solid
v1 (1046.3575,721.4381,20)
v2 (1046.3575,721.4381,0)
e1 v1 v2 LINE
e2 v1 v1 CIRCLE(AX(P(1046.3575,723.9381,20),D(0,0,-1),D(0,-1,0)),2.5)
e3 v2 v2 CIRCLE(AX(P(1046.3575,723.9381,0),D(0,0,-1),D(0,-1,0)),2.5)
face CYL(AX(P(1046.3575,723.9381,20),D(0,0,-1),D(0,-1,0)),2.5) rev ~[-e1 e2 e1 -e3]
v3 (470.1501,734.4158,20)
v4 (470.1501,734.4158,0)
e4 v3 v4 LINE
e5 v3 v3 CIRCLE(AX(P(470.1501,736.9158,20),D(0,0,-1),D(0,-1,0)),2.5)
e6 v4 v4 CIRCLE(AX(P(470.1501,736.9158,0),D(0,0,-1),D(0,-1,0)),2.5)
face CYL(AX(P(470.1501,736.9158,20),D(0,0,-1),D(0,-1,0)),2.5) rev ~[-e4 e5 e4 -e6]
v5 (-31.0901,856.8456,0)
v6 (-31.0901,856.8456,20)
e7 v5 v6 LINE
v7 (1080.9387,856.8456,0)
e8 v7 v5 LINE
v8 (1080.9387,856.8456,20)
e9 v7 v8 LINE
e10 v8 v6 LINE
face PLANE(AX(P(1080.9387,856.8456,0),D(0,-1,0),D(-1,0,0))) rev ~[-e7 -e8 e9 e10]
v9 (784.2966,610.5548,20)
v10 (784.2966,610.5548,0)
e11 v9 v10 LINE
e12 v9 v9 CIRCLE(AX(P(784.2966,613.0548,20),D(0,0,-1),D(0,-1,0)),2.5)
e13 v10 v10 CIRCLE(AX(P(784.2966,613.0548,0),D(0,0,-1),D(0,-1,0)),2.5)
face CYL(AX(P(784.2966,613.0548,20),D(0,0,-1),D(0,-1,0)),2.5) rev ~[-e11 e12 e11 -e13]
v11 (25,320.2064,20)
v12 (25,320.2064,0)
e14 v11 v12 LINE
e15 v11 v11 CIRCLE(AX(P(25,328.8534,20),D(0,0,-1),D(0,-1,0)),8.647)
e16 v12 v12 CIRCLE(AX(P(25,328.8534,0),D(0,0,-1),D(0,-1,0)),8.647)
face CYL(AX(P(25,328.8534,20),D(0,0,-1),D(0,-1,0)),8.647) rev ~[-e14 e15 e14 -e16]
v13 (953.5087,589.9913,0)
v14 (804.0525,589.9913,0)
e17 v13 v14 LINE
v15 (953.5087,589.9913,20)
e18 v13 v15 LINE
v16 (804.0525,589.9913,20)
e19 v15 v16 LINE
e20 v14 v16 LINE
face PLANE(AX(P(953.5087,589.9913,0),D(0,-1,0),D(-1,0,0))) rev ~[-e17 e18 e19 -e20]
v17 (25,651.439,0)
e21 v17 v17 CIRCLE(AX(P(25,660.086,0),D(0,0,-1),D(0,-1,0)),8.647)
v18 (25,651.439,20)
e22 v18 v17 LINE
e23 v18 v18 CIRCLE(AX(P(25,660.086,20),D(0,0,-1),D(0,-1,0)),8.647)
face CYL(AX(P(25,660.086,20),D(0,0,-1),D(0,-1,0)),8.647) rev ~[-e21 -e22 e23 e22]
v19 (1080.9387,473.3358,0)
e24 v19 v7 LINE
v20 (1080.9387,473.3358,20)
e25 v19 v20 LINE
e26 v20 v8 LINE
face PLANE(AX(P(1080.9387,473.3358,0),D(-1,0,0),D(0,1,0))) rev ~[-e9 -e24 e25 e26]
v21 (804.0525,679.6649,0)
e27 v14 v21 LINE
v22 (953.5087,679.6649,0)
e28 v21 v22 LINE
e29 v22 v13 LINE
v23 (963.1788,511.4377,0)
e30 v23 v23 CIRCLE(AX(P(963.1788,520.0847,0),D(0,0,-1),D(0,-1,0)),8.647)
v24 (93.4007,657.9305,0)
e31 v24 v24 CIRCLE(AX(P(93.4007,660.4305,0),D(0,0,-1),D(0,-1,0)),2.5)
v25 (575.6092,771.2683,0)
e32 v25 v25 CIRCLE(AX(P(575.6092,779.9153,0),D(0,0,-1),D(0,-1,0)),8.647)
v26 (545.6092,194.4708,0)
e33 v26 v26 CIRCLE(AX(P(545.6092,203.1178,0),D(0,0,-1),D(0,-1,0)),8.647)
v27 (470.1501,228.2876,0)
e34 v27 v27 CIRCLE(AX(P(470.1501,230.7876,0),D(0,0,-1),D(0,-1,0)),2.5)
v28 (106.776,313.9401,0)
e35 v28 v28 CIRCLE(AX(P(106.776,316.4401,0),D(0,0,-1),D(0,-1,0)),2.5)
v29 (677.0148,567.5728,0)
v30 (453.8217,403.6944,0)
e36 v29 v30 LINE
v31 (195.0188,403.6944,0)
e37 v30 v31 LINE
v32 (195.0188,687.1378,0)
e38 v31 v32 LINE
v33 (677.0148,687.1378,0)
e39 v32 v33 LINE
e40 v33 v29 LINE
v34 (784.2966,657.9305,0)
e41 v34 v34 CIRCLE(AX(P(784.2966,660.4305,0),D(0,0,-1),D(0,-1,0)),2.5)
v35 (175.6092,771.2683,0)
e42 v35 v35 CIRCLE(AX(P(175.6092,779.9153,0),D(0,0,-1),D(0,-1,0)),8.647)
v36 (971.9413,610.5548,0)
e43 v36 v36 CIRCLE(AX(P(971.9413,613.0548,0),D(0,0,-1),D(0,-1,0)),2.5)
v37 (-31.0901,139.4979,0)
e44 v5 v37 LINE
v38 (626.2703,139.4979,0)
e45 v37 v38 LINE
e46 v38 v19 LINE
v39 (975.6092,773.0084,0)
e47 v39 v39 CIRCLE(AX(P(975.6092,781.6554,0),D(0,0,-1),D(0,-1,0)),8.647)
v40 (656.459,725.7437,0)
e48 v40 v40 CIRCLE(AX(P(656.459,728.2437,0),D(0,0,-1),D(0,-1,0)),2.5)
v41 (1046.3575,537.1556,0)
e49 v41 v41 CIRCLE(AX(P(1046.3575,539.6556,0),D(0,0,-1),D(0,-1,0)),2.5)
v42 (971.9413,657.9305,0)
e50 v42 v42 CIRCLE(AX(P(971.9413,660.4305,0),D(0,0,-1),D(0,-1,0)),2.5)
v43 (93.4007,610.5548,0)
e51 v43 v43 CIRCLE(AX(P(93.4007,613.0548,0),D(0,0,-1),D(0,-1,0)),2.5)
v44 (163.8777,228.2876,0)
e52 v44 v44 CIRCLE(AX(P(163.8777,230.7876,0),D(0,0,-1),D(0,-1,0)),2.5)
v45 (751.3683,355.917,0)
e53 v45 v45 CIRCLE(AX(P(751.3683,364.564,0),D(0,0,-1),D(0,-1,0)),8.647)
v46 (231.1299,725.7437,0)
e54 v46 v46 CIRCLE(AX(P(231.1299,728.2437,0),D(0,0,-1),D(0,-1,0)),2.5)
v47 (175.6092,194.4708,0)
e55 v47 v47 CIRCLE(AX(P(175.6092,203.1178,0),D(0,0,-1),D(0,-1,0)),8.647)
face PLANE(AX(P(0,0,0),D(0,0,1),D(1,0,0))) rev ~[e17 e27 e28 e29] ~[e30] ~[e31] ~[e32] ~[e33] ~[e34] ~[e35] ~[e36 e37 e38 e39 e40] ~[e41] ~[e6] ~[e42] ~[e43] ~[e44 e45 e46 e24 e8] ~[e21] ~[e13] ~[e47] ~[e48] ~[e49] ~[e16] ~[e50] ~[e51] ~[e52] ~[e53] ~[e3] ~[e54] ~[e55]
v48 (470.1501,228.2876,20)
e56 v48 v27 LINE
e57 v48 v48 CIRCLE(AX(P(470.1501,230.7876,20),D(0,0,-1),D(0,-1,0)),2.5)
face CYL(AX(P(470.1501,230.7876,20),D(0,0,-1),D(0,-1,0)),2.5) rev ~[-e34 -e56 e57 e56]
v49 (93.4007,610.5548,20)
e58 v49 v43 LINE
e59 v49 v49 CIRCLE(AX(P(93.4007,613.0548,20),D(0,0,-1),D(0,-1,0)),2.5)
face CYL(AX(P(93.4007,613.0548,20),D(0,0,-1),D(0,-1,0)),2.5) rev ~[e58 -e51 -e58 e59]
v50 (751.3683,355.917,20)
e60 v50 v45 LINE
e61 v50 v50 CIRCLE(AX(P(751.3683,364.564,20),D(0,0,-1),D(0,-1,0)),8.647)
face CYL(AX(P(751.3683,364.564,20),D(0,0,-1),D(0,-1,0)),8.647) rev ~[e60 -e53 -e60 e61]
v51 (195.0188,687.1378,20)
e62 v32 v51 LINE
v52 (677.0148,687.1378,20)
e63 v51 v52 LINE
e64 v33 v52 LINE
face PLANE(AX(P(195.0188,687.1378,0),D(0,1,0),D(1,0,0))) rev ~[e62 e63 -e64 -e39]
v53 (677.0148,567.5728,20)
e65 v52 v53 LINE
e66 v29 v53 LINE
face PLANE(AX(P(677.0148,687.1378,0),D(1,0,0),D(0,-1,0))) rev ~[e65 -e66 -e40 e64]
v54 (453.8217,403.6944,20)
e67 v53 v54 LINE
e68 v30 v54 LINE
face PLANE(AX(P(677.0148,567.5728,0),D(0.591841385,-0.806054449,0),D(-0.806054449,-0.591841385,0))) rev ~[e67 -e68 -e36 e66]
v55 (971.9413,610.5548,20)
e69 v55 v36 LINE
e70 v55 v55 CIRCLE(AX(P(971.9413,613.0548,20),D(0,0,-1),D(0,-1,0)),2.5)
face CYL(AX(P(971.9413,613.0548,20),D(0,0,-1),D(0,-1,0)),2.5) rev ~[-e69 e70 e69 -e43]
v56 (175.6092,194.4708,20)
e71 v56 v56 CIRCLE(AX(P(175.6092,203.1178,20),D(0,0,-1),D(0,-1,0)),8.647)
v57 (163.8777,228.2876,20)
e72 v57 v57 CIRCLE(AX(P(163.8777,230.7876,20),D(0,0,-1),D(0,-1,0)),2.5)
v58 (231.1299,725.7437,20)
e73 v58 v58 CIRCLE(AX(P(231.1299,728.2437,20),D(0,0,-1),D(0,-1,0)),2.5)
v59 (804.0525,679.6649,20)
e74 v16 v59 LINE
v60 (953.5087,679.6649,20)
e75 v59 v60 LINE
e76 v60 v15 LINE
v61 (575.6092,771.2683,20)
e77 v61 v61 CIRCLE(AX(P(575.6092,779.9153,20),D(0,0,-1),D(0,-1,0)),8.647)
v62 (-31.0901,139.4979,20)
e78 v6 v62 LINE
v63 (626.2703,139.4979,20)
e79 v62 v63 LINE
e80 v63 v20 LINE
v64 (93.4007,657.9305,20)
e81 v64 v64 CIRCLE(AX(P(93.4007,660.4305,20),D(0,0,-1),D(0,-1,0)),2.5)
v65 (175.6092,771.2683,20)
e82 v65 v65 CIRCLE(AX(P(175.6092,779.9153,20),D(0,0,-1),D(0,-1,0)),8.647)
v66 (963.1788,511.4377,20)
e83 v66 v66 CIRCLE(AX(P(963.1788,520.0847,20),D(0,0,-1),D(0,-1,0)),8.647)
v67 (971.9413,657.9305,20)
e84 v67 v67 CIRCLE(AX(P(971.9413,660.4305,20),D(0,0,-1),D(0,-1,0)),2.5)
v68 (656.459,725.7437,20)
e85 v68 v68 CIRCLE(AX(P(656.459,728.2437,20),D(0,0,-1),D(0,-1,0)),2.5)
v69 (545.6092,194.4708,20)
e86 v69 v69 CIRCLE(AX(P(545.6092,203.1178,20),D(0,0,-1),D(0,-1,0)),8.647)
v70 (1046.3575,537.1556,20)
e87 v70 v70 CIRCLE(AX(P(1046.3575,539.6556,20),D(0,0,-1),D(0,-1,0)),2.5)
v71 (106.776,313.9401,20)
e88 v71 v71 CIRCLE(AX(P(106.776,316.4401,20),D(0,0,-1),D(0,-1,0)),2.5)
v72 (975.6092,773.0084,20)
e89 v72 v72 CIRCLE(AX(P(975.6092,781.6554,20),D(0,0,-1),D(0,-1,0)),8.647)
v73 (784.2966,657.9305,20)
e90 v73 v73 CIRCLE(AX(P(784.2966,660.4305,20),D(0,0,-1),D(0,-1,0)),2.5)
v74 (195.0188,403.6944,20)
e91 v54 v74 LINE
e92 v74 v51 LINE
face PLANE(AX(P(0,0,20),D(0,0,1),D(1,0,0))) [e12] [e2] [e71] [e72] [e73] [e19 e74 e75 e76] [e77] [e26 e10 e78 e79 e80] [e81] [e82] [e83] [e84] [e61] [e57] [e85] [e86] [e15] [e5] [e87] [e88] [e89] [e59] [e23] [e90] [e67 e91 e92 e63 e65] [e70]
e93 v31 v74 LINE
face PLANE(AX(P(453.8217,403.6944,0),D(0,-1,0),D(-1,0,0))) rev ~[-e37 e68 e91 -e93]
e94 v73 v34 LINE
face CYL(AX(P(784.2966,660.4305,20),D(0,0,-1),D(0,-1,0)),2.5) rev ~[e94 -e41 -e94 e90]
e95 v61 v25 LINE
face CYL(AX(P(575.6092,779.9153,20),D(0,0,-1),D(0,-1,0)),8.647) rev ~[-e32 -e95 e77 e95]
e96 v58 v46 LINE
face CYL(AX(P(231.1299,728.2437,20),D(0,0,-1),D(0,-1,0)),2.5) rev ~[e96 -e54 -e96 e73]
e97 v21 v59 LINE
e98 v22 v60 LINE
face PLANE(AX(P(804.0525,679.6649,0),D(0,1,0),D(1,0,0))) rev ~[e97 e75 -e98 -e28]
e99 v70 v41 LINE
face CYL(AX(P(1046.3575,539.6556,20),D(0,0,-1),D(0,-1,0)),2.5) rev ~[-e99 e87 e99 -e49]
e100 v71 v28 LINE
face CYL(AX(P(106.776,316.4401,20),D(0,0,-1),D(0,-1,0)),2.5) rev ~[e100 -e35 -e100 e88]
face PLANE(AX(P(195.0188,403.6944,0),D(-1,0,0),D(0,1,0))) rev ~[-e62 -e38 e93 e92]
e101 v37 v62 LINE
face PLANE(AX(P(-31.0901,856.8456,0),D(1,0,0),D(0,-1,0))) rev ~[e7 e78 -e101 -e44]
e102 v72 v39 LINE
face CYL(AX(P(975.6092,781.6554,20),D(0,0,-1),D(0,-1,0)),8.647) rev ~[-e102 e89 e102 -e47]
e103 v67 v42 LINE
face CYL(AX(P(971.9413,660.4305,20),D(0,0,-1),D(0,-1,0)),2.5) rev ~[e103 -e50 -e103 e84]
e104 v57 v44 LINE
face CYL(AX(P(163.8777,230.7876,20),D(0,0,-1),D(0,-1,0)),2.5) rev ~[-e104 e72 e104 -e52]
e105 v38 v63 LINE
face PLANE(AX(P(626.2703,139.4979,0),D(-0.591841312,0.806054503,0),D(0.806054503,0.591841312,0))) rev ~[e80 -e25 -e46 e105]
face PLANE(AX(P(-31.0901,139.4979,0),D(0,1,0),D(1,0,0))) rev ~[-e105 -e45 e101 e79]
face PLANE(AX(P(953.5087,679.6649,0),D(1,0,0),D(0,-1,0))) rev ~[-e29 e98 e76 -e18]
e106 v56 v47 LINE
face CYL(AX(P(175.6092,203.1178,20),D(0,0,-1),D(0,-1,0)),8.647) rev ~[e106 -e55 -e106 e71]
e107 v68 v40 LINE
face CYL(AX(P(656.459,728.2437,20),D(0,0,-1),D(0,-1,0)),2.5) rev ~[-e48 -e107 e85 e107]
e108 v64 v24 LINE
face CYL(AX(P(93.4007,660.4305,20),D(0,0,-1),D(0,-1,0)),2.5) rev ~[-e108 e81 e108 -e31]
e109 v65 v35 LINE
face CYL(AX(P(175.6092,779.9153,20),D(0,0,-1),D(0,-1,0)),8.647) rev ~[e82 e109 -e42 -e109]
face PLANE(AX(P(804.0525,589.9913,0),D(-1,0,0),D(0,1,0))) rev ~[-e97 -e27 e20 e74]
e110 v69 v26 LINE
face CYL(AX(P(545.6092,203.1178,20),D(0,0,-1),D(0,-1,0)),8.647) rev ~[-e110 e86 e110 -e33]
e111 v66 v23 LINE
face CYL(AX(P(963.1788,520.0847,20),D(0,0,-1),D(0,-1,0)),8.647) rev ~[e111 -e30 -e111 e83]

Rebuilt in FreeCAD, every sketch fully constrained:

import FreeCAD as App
import Part
import Sketcher

doc = App.newDocument("Part")
body = doc.addObject("PartDesign::Body", "Body")

# Sketch on XY plane
sketch1 = body.newObject("Sketcher::SketchObject", "Sketch")
sketch1.AttachmentSupport = (doc.getObject("XY_Plane"), [""])
sketch1.MapMode = "FlatFace"
sketch1.addGeometry([
    Part.LineSegment(App.Vector(1081, 473, 0), App.Vector(1081, 857, 0)),  # 0
    Part.LineSegment(App.Vector(1081, 857, 0), App.Vector(-31, 857, 0)),  # 1
    Part.LineSegment(App.Vector(-31, 857, 0), App.Vector(-31, 139, 0)),  # 2
    Part.LineSegment(App.Vector(-31, 139, 0), App.Vector(626, 139, 0)),  # 3
    Part.LineSegment(App.Vector(626, 139, 0), App.Vector(1081, 473, 0)),  # 4
    Part.LineSegment(App.Vector(195, 404, 0), App.Vector(195, 687, 0)),  # 5
    Part.LineSegment(App.Vector(195, 687, 0), App.Vector(677, 687, 0)),  # 6
    Part.LineSegment(App.Vector(677, 687, 0), App.Vector(677, 568, 0)),  # 7
    Part.LineSegment(App.Vector(677, 568, 0), App.Vector(454, 404, 0)),  # 8
    Part.LineSegment(App.Vector(454, 404, 0), App.Vector(195, 404, 0)),  # 9
    Part.LineSegment(App.Vector(804, 590, 0), App.Vector(804, 680, 0)),  # 10
    Part.LineSegment(App.Vector(804, 680, 0), App.Vector(954, 680, 0)),  # 11
    Part.LineSegment(App.Vector(954, 680, 0), App.Vector(954, 590, 0)),  # 12
    Part.LineSegment(App.Vector(954, 590, 0), App.Vector(804, 590, 0)),  # 13
], False)
sketch1.addConstraint([
    Sketcher.Constraint("Coincident", 0, 2, 1, 1),
    Sketcher.Constraint("Coincident", 1, 2, 2, 1),
    Sketcher.Constraint("Coincident", 2, 2, 3, 1),
    Sketcher.Constraint("Coincident", 3, 2, 4, 1),
    Sketcher.Constraint("Coincident", 4, 2, 0, 1),
    Sketcher.Constraint("Coincident", 5, 2, 6, 1),
    Sketcher.Constraint("Coincident", 6, 2, 7, 1),
    Sketcher.Constraint("Coincident", 7, 2, 8, 1),
    Sketcher.Constraint("Coincident", 8, 2, 9, 1),
    Sketcher.Constraint("Coincident", 9, 2, 5, 1),
    Sketcher.Constraint("Coincident", 10, 2, 11, 1),
    Sketcher.Constraint("Coincident", 11, 2, 12, 1),
    Sketcher.Constraint("Coincident", 12, 2, 13, 1),
    Sketcher.Constraint("Coincident", 13, 2, 10, 1),
    Sketcher.Constraint("Vertical", 0),
    Sketcher.Constraint("Horizontal", 1),
    Sketcher.Constraint("Vertical", 2),
    Sketcher.Constraint("Horizontal", 3),
    Sketcher.Constraint("Vertical", 5),
    Sketcher.Constraint("Horizontal", 6),
    Sketcher.Constraint("Vertical", 7),
    Sketcher.Constraint("Horizontal", 9),
    Sketcher.Constraint("Vertical", 10),
    Sketcher.Constraint("Horizontal", 11),
    Sketcher.Constraint("Vertical", 12),
    Sketcher.Constraint("Horizontal", 13),
    Sketcher.Constraint("Parallel", 4, 8),
    Sketcher.Constraint("DistanceX", 6, 1, 6, 2, 481.996),
    Sketcher.Constraint("DistanceX", 9, 2, 9, 1, 258.803),
    Sketcher.Constraint("DistanceY", 7, 2, 7, 1, 119.565),
    Sketcher.Constraint("DistanceX", 1, 2, -1, 1, 31.09),
    Sketcher.Constraint("DistanceY", 2, 2, 5, 2, 547.64),
    Sketcher.Constraint("DistanceX", 5, 2, 0, 2, 885.92),
    Sketcher.Constraint("DistanceX", 11, 2, 0, 2, 127.43),
    Sketcher.Constraint("DistanceX", 1, 2, 1, 1, 1112.0288),
    Sketcher.Constraint("DistanceX", 3, 1, 3, 2, 657.3604),
    Sketcher.Constraint("DistanceX", 11, 1, 11, 2, 149.4562),
    Sketcher.Constraint("DistanceY", 0, 1, 0, 2, 383.5098),
    Sketcher.Constraint("DistanceY", 2, 2, 2, 1, 717.3477),
    Sketcher.Constraint("DistanceY", 10, 1, 10, 2, 89.6736),
    Sketcher.Constraint("DistanceY", -1, 1, 2, 2, 139.498),
    Sketcher.Constraint("DistanceY", -1, 1, 10, 2, 679.665),
])
pad1 = body.newObject("PartDesign::Pad", "Pad")
pad1.Profile = sketch1
pad1.Length = 20

# Sketch on XY plane
sketch2 = body.newObject("Sketcher::SketchObject", "Sketch001")
sketch2.AttachmentSupport = (doc.getObject("XY_Plane"), [""])
sketch2.MapMode = "FlatFace"
sketch2.AttachmentOffset = App.Placement(App.Vector(0, 0, 20), App.Rotation())
sketch2.addGeometry([
    Part.Circle(App.Vector(784.3, 660.4, 0), App.Vector(0, 0, 1), 2.5),  # 0
    Part.Circle(App.Vector(784.3, 613.1, 0), App.Vector(0, 0, 1), 2.5),  # 1
    Part.Circle(App.Vector(971.9, 613.1, 0), App.Vector(0, 0, 1), 2.5),  # 2
    Part.Circle(App.Vector(971.9, 660.4, 0), App.Vector(0, 0, 1), 2.5),  # 3
    Part.Circle(App.Vector(93.4, 660.4, 0), App.Vector(0, 0, 1), 2.5),  # 4
    Part.Circle(App.Vector(93.4, 613.1, 0), App.Vector(0, 0, 1), 2.5),  # 5
    Part.Circle(App.Vector(470.2, 736.9, 0), App.Vector(0, 0, 1), 2.5),  # 6
    Part.Circle(App.Vector(1046.4, 723.9, 0), App.Vector(0, 0, 1), 2.5),  # 7
    Part.Circle(App.Vector(1046.4, 539.7, 0), App.Vector(0, 0, 1), 2.5),  # 8
    Part.Circle(App.Vector(470.2, 230.8, 0), App.Vector(0, 0, 1), 2.5),  # 9
    Part.Circle(App.Vector(163.9, 230.8, 0), App.Vector(0, 0, 1), 2.5),  # 10
    Part.Circle(App.Vector(106.8, 316.4, 0), App.Vector(0, 0, 1), 2.5),  # 11
    Part.Circle(App.Vector(231.1, 728.2, 0), App.Vector(0, 0, 1), 2.5),  # 12
    Part.Circle(App.Vector(656.5, 728.2, 0), App.Vector(0, 0, 1), 2.5),  # 13
], False)
sketch2.addConstraint([
    Sketcher.Constraint("Equal", 0, 1),
    Sketcher.Constraint("Equal", 1, 2),
    Sketcher.Constraint("Equal", 2, 3),
    Sketcher.Constraint("Equal", 3, 4),
    Sketcher.Constraint("Equal", 4, 5),
    Sketcher.Constraint("Equal", 5, 6),
    Sketcher.Constraint("Equal", 6, 7),
    Sketcher.Constraint("Equal", 7, 8),
    Sketcher.Constraint("Equal", 8, 9),
    Sketcher.Constraint("Equal", 9, 10),
    Sketcher.Constraint("Equal", 10, 11),
    Sketcher.Constraint("Equal", 11, 12),
    Sketcher.Constraint("Equal", 12, 13),
    Sketcher.Constraint("Horizontal", 1, 3, 2, 3),
    Sketcher.Constraint("Horizontal", 0, 3, 3, 3),
    Sketcher.Constraint("Horizontal", 3, 3, 4, 3),
    Sketcher.Constraint("Horizontal", 2, 3, 5, 3),
    Sketcher.Constraint("Horizontal", 9, 3, 10, 3),
    Sketcher.Constraint("Horizontal", 12, 3, 13, 3),
    Sketcher.Constraint("Vertical", 0, 3, 1, 3),
    Sketcher.Constraint("Vertical", 2, 3, 3, 3),
    Sketcher.Constraint("Vertical", 4, 3, 5, 3),
    Sketcher.Constraint("Vertical", 7, 3, 8, 3),
    Sketcher.Constraint("Vertical", 6, 3, 9, 3),
    Sketcher.Constraint("Diameter", 0, 5.0),
    Sketcher.Constraint("DistanceX", -1, 1, 6, 3, 470.15),
    Sketcher.Constraint("DistanceY", -1, 1, 11, 3, 316.44),
    Sketcher.Constraint("DistanceX", -1, 1, 12, 3, 231.13),
    Sketcher.Constraint("DistanceY", -1, 1, 7, 3, 723.938),
    Sketcher.Constraint("DistanceX", -1, 1, 11, 3, 106.776),
    Sketcher.Constraint("DistanceX", -1, 1, 13, 3, 656.459),
    Sketcher.Constraint("DistanceX", 4, 3, 0, 3, 690.896),
    Sketcher.Constraint("DistanceY", 1, 3, 6, 3, 123.861),
    Sketcher.Constraint("DistanceX", 0, 3, 7, 3, 262.061),
    Sketcher.Constraint("DistanceY", 8, 3, 3, 3, 120.775),
    Sketcher.Constraint("DistanceY", 9, 3, 0, 3, 429.643),
    Sketcher.Constraint("DistanceX", 5, 3, 10, 3, 70.477),
    Sketcher.Constraint("DistanceY", 5, 3, 12, 3, 115.189),
    Sketcher.Constraint("DistanceY", 10, 3, 12, 3, 497.456),
    Sketcher.Constraint("DistanceX", -1, 1, 0, 3, 784.2966),
    Sketcher.Constraint("DistanceY", -1, 1, 0, 3, 660.4305),
    Sketcher.Constraint("DistanceX", -1, 1, 2, 3, 971.9413),
])
doc.recompute()
hole = body.newObject("PartDesign::Hole", "Hole")
hole.Profile = sketch2
hole.ThreadType = "None"
hole.Diameter = 5
hole.DepthType = "ThroughAll"

# Sketch on XY plane
sketch3 = body.newObject("Sketcher::SketchObject", "Sketch002")
sketch3.AttachmentSupport = (doc.getObject("XY_Plane"), [""])
sketch3.MapMode = "FlatFace"
sketch3.AttachmentOffset = App.Placement(App.Vector(0, 0, 20), App.Rotation())
sketch3.addGeometry([
    Part.Circle(App.Vector(25, 329, 0), App.Vector(0, 0, 1), 9),  # 0
    Part.Circle(App.Vector(25, 660, 0), App.Vector(0, 0, 1), 9),  # 1
    Part.Circle(App.Vector(176, 780, 0), App.Vector(0, 0, 1), 9),  # 2
    Part.Circle(App.Vector(576, 780, 0), App.Vector(0, 0, 1), 9),  # 3
    Part.Circle(App.Vector(976, 782, 0), App.Vector(0, 0, 1), 9),  # 4
    Part.Circle(App.Vector(963, 520, 0), App.Vector(0, 0, 1), 9),  # 5
    Part.Circle(App.Vector(751, 365, 0), App.Vector(0, 0, 1), 9),  # 6
    Part.Circle(App.Vector(546, 203, 0), App.Vector(0, 0, 1), 9),  # 7
    Part.Circle(App.Vector(176, 203, 0), App.Vector(0, 0, 1), 9),  # 8
], False)
sketch3.addConstraint([
    Sketcher.Constraint("Equal", 0, 1),
    Sketcher.Constraint("Equal", 1, 2),
    Sketcher.Constraint("Equal", 2, 3),
    Sketcher.Constraint("Equal", 3, 4),
    Sketcher.Constraint("Equal", 4, 5),
    Sketcher.Constraint("Equal", 5, 6),
    Sketcher.Constraint("Equal", 6, 7),
    Sketcher.Constraint("Equal", 7, 8),
    Sketcher.Constraint("Horizontal", 2, 3, 3, 3),
    Sketcher.Constraint("Horizontal", 7, 3, 8, 3),
    Sketcher.Constraint("Vertical", 0, 3, 1, 3),
    Sketcher.Constraint("Vertical", 2, 3, 8, 3),
    Sketcher.Constraint("Diameter", 0, 17.294),
    Sketcher.Constraint("DistanceX", -1, 1, 0, 3, 25.0),
    Sketcher.Constraint("DistanceX", 2, 3, 3, 3, 400.0),
    Sketcher.Constraint("DistanceX", 3, 3, 4, 3, 400.0),
    Sketcher.Constraint("DistanceX", 7, 3, 3, 3, 30.0),
    Sketcher.Constraint("DistanceY", 3, 3, 4, 3, 1.74),
    Sketcher.Constraint("DistanceY", -1, 1, 1, 3, 660.086),
    Sketcher.Constraint("DistanceY", -1, 1, 6, 3, 364.564),
    Sketcher.Constraint("DistanceY", 0, 3, 2, 3, 451.062),
    Sketcher.Constraint("DistanceX", 3, 3, 6, 3, 175.759),
    Sketcher.Constraint("DistanceY", 7, 3, 5, 3, 316.967),
    Sketcher.Constraint("DistanceY", -1, 1, 0, 3, 328.8534),
    Sketcher.Constraint("DistanceX", -1, 1, 2, 3, 175.6092),
    Sketcher.Constraint("DistanceX", -1, 1, 5, 3, 963.1788),
    Sketcher.Constraint("DistanceY", -1, 1, 5, 3, 520.0847),
])
doc.recompute()
hole2 = body.newObject("PartDesign::Hole", "Hole001")
hole2.Profile = sketch3
hole2.ThreadType = "None"
hole2.Diameter = 17.294
hole2.DepthType = "ThroughAll"

doc.recompute()
